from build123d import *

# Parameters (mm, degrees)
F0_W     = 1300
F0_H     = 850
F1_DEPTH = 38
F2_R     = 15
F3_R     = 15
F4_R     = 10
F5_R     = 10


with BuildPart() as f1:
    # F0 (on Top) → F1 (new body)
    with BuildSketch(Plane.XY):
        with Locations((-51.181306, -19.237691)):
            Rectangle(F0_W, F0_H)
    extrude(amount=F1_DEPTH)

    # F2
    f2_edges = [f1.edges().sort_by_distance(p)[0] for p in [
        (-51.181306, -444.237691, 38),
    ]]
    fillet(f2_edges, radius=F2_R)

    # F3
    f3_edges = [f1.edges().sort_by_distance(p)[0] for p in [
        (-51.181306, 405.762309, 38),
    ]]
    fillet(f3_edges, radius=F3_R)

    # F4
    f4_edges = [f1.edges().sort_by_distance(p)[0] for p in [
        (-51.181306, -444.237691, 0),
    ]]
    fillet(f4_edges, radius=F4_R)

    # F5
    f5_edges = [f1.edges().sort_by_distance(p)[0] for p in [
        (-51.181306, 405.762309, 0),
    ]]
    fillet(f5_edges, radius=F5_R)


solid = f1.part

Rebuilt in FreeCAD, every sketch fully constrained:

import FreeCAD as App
import Part
import Sketcher

V = App.Vector


def edges_at(feature, points):
    """Names of the edges that pass closest to the given points."""
    edges = feature.Shape.Edges
    near = lambda p: min(range(len(edges)), key=lambda i: edges[i].distToShape(Part.Vertex(*p))[0])
    return sorted({f"Edge{near(p) + 1}" for p in points})


def add_polygon(sketch, points):
    """Adds a closed chain of lines whose ends are joined by coincident constraints."""
    first, n = sketch.GeometryCount, len(points)
    for a, b in zip(points, points[1:] + points[:1]):
        sketch.addGeometry(Part.LineSegment(App.Vector(*a, 0), App.Vector(*b, 0)), False)
    for i in range(n):
        sketch.addConstraint(Sketcher.Constraint("Coincident", first + i, 2, first + (i + 1) % n, 1))

doc = App.newDocument("Part")
body = doc.addObject("PartDesign::Body", "Body")

# Sketch on XY plane
sketch1 = body.newObject("Sketcher::SketchObject", "Sketch")
sketch1.AttachmentSupport = (doc.getObject("XY_Plane"), [""])
sketch1.MapMode = "FlatFace"
add_polygon(sketch1, [(-701.181306, 405.762309), (-701.181306, -444.237691), (598.818694, -444.237691), (598.818694, 405.762309)])  # lines 0-3
sketch1.addConstraint([
    Sketcher.Constraint("Vertical", 0),
    Sketcher.Constraint("Horizontal", 1),
    Sketcher.Constraint("Vertical", 2),
    Sketcher.Constraint("Horizontal", 3),
    Sketcher.Constraint("DistanceX", 1, 1, 1, 2, 1300.0),
    Sketcher.Constraint("DistanceY", 0, 2, 0, 1, 850.0),
    Sketcher.Constraint("DistanceY", 0, 2, -1, 1, 444.237691),
    Sketcher.Constraint("DistanceX", 0, 2, -1, 1, 701.181306),
])
pad1 = body.newObject("PartDesign::Pad", "Pad")
pad1.Profile = sketch1
pad1.Length = 38
doc.recompute()

fillet = body.newObject("PartDesign::Fillet", "Fillet")
fillet.Base = (pad1, edges_at(pad1, [(-51.181, -444.238, 38)]))
fillet.Radius = 15
doc.recompute()

fillet2 = body.newObject("PartDesign::Fillet", "Fillet001")
fillet2.Base = (fillet, edges_at(fillet, [(-51.181, 405.762, 38)]))
fillet2.Radius = 15
doc.recompute()

fillet3 = body.newObject("PartDesign::Fillet", "Fillet002")
fillet3.Base = (fillet2, edges_at(fillet2, [(-51.181, -444.238, 0)]))
fillet3.Radius = 10
doc.recompute()

fillet4 = body.newObject("PartDesign::Fillet", "Fillet003")
fillet4.Base = (fillet3, edges_at(fillet3, [(-51.181, 405.762, 0)]))
fillet4.Radius = 10

doc.recompute()
